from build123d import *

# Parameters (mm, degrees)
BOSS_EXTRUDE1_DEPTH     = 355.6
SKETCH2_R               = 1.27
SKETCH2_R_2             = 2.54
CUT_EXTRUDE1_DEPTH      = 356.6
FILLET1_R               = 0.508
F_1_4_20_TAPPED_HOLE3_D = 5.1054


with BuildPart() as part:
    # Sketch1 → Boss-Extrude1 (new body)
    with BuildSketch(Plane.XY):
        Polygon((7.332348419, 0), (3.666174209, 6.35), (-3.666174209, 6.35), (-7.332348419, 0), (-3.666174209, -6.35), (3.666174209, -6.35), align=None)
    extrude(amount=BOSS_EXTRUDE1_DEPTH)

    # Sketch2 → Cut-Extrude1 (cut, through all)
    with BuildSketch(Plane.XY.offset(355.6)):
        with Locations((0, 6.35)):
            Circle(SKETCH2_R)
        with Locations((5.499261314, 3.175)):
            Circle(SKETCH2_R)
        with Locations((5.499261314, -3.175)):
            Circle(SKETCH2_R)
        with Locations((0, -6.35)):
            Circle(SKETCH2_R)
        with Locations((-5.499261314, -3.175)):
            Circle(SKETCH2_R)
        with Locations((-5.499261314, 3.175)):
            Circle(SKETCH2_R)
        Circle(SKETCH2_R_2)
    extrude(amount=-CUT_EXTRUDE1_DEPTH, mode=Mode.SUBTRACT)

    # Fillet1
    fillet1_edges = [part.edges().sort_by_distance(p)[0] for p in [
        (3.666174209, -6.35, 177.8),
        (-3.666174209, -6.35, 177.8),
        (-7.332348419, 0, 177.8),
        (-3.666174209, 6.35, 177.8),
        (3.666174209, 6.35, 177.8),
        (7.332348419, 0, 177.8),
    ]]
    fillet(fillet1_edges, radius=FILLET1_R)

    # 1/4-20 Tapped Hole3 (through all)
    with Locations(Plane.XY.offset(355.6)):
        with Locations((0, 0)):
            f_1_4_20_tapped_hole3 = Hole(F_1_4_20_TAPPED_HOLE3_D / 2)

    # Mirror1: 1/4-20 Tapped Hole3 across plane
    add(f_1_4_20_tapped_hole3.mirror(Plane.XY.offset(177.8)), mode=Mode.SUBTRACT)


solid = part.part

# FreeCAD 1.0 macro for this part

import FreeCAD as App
import Part
import Sketcher
from FreeCAD import Vector
Q = App.Units.Quantity


def edges_at(feature, points):
    """Names of the edges that pass closest to the given points."""
    edges = feature.Shape.Edges
    near = lambda p: min(range(len(edges)), key=lambda i: edges[i].distToShape(Part.Vertex(*p))[0])
    return sorted({f"Edge{near(p) + 1}" for p in points})


def add_polygon(sketch, points):
    """Adds a closed chain of lines whose ends are joined by coincident constraints."""
    first, n = sketch.GeometryCount, len(points)
    for a, b in zip(points, points[1:] + points[:1]):
        sketch.addGeometry(Part.LineSegment(App.Vector(*a, 0), App.Vector(*b, 0)), False)
    for i in range(n):
        sketch.addConstraint(Sketcher.Constraint("Coincident", first + i, 2, first + (i + 1) % n, 1))

doc = App.newDocument("Part")
params = doc.addObject("Spreadsheet::Sheet", "Params")
for row, (alias, value) in enumerate([
    ("pad1_length", "14 in"),
    ("sketch2_diameter", "0.1 in"),
    ("sketch2_diameter2", "0.2 in"),
    ("fillet_radius", "0.02 in"),
    ("sketch3_diameter", "0.201 in"),
    ("hole_diameter", "0.201 in"),
], start=1):
    params.set(f"A{row}", alias)
    params.set(f"B{row}", "=" + value)
    params.setAlias(f"B{row}", alias)

body = doc.addObject("PartDesign::Body", "Body")

# Sketch on XY plane
sketch1 = body.newObject("Sketcher::SketchObject", "Sketch")
sketch1.AttachmentSupport = (doc.getObject("XY_Plane"), [""])
sketch1.MapMode = "FlatFace"
add_polygon(sketch1, [(7.332348, 0), (3.666174, 6.35), (-3.666174, 6.35), (-7.332348, 0), (-3.666174, -6.35), (3.666174, -6.35)])  # lines 0-5
sketch1.addConstraint([
    Sketcher.Constraint("Horizontal", 1),
    Sketcher.Constraint("Horizontal", 4),
    Sketcher.Constraint("Symmetric", 0, 2, 3, 2, -1, 1),
    Sketcher.Constraint("Symmetric", 2, 2, 5, 2, -1, 1),
    Sketcher.Constraint("PointOnObject", 2, 2, -1),
    Sketcher.Constraint("Parallel", 2, 5),
    Sketcher.Constraint("Vertical", 1, 2, 3, 2),
    Sketcher.Constraint("Angle", 0, Q("120 deg")),
    Sketcher.Constraint("DistanceY", 3, 2, 1, 2, Q("0.5 in")),
    Sketcher.Constraint("DistanceX", 1, 2, 1, 1, Q("7.332348 mm")),
])
pad1 = body.newObject("PartDesign::Pad", "Pad")
pad1.Profile = sketch1
pad1.setExpression("Length", "Params.pad1_length")

# Sketch on XY plane
sketch2 = body.newObject("Sketcher::SketchObject", "Sketch001")
sketch2.AttachmentSupport = (doc.getObject("XY_Plane"), [""])
sketch2.MapMode = "FlatFace"
sketch2.AttachmentOffset = App.Placement(Vector(0, 0, 14 * 25.4), App.Rotation())
sketch2.addGeometry([
    Part.Circle(Vector(0, 6.35, 0), Vector(0, 0, 1), 1.27),  # 0
    Part.Circle(Vector(5.499261, 3.175, 0), Vector(0, 0, 1), 1.27),  # 1
    Part.Circle(Vector(5.499261, -3.175, 0), Vector(0, 0, 1), 1.27),  # 2
    Part.Circle(Vector(0, -6.35, 0), Vector(0, 0, 1), 1.27),  # 3
    Part.Circle(Vector(-5.499261, -3.175, 0), Vector(0, 0, 1), 1.27),  # 4
    Part.Circle(Vector(-5.499261, 3.175, 0), Vector(0, 0, 1), 1.27),  # 5
    Part.Circle(Vector(0, 0, 0), Vector(0, 0, 1), 2.54),  # 6
], False)
sketch2.addConstraint([
    Sketcher.Constraint("Coincident", 6, 3, -1, 1),
    Sketcher.Constraint("Equal", 0, 1),
    Sketcher.Constraint("Equal", 1, 2),
    Sketcher.Constraint("Equal", 2, 3),
    Sketcher.Constraint("Equal", 3, 4),
    Sketcher.Constraint("Equal", 4, 5),
    Sketcher.Constraint("Symmetric", 0, 3, 3, 3, -1, 1),
    Sketcher.Constraint("Symmetric", 1, 3, 4, 3, -1, 1),
    Sketcher.Constraint("Symmetric", 2, 3, 5, 3, -1, 1),
    Sketcher.Constraint("Symmetric", 2, 3, 4, 3, -2),
    Sketcher.Constraint("PointOnObject", 0, 3, -2),
    Sketcher.Constraint("Diameter", 0, Q("0.1 in")),
    Sketcher.Constraint("Diameter", 6, Q("0.2 in")),
    Sketcher.Constraint("DistanceY", 3, 3, 0, 3, Q("0.5 in")),
    Sketcher.Constraint("DistanceY", 2, 3, 1, 3, Q("0.25 in")),
    Sketcher.Constraint("DistanceX", -1, 1, 1, 3, Q("5.499261 mm")),
])
sketch2.setExpression("Constraints[11]", "Params.sketch2_diameter")
sketch2.setExpression("Constraints[12]", "Params.sketch2_diameter2")
pocket1 = body.newObject("PartDesign::Pocket", "Pocket")
pocket1.Profile = sketch2
pocket1.Type = "ThroughAll"
doc.recompute()

fillet = body.newObject("PartDesign::Fillet", "Fillet")
fillet.Base = (pocket1, edges_at(pocket1, [
    (3.666, -6.35, 177.8),
    (-3.666, -6.35, 177.8),
    (-7.332, 0, 177.8),
    (-3.666, 6.35, 177.8),
    (3.666, 6.35, 177.8),
    (7.332, 0, 177.8),
]))
fillet.setExpression("Radius", "Params.fillet_radius")

# Sketch on XY plane
sketch3 = body.newObject("Sketcher::SketchObject", "Sketch002")
sketch3.AttachmentSupport = (doc.getObject("XY_Plane"), [""])
sketch3.MapMode = "FlatFace"
sketch3.AttachmentOffset = App.Placement(Vector(0, 0, 14 * 25.4), App.Rotation())
sketch3.addGeometry(Part.Circle(Vector(0, 0, 0), Vector(0, 0, 1), 2.5527), False)
sketch3.addConstraint([
    Sketcher.Constraint("Coincident", 0, 3, -1, 1),
    Sketcher.Constraint("Diameter", 0, Q("0.201 in")),
])
sketch3.setExpression("Constraints[1]", "Params.sketch3_diameter")
doc.recompute()
hole = body.newObject("PartDesign::Hole", "Hole")
hole.Profile = sketch3
hole.ThreadType = "None"
hole.setExpression("Diameter", "Params.hole_diameter")
hole.DepthType = "ThroughAll"
doc.recompute()

datumplane = body.newObject("PartDesign::Plane", "DatumPlane")
datumplane.AttachmentSupport = (doc.getObject("XY_Plane"), [""])
datumplane.MapMode = "FlatFace"
datumplane.AttachmentOffset = App.Placement(Vector(0, 0, 7 * 25.4), App.Rotation())
mirrored = body.newObject("PartDesign::Mirrored", "Mirrored")
mirrored.Originals = [hole]
mirrored.MirrorPlane = (datumplane, [""])
body.Tip = mirrored

doc.recompute()
